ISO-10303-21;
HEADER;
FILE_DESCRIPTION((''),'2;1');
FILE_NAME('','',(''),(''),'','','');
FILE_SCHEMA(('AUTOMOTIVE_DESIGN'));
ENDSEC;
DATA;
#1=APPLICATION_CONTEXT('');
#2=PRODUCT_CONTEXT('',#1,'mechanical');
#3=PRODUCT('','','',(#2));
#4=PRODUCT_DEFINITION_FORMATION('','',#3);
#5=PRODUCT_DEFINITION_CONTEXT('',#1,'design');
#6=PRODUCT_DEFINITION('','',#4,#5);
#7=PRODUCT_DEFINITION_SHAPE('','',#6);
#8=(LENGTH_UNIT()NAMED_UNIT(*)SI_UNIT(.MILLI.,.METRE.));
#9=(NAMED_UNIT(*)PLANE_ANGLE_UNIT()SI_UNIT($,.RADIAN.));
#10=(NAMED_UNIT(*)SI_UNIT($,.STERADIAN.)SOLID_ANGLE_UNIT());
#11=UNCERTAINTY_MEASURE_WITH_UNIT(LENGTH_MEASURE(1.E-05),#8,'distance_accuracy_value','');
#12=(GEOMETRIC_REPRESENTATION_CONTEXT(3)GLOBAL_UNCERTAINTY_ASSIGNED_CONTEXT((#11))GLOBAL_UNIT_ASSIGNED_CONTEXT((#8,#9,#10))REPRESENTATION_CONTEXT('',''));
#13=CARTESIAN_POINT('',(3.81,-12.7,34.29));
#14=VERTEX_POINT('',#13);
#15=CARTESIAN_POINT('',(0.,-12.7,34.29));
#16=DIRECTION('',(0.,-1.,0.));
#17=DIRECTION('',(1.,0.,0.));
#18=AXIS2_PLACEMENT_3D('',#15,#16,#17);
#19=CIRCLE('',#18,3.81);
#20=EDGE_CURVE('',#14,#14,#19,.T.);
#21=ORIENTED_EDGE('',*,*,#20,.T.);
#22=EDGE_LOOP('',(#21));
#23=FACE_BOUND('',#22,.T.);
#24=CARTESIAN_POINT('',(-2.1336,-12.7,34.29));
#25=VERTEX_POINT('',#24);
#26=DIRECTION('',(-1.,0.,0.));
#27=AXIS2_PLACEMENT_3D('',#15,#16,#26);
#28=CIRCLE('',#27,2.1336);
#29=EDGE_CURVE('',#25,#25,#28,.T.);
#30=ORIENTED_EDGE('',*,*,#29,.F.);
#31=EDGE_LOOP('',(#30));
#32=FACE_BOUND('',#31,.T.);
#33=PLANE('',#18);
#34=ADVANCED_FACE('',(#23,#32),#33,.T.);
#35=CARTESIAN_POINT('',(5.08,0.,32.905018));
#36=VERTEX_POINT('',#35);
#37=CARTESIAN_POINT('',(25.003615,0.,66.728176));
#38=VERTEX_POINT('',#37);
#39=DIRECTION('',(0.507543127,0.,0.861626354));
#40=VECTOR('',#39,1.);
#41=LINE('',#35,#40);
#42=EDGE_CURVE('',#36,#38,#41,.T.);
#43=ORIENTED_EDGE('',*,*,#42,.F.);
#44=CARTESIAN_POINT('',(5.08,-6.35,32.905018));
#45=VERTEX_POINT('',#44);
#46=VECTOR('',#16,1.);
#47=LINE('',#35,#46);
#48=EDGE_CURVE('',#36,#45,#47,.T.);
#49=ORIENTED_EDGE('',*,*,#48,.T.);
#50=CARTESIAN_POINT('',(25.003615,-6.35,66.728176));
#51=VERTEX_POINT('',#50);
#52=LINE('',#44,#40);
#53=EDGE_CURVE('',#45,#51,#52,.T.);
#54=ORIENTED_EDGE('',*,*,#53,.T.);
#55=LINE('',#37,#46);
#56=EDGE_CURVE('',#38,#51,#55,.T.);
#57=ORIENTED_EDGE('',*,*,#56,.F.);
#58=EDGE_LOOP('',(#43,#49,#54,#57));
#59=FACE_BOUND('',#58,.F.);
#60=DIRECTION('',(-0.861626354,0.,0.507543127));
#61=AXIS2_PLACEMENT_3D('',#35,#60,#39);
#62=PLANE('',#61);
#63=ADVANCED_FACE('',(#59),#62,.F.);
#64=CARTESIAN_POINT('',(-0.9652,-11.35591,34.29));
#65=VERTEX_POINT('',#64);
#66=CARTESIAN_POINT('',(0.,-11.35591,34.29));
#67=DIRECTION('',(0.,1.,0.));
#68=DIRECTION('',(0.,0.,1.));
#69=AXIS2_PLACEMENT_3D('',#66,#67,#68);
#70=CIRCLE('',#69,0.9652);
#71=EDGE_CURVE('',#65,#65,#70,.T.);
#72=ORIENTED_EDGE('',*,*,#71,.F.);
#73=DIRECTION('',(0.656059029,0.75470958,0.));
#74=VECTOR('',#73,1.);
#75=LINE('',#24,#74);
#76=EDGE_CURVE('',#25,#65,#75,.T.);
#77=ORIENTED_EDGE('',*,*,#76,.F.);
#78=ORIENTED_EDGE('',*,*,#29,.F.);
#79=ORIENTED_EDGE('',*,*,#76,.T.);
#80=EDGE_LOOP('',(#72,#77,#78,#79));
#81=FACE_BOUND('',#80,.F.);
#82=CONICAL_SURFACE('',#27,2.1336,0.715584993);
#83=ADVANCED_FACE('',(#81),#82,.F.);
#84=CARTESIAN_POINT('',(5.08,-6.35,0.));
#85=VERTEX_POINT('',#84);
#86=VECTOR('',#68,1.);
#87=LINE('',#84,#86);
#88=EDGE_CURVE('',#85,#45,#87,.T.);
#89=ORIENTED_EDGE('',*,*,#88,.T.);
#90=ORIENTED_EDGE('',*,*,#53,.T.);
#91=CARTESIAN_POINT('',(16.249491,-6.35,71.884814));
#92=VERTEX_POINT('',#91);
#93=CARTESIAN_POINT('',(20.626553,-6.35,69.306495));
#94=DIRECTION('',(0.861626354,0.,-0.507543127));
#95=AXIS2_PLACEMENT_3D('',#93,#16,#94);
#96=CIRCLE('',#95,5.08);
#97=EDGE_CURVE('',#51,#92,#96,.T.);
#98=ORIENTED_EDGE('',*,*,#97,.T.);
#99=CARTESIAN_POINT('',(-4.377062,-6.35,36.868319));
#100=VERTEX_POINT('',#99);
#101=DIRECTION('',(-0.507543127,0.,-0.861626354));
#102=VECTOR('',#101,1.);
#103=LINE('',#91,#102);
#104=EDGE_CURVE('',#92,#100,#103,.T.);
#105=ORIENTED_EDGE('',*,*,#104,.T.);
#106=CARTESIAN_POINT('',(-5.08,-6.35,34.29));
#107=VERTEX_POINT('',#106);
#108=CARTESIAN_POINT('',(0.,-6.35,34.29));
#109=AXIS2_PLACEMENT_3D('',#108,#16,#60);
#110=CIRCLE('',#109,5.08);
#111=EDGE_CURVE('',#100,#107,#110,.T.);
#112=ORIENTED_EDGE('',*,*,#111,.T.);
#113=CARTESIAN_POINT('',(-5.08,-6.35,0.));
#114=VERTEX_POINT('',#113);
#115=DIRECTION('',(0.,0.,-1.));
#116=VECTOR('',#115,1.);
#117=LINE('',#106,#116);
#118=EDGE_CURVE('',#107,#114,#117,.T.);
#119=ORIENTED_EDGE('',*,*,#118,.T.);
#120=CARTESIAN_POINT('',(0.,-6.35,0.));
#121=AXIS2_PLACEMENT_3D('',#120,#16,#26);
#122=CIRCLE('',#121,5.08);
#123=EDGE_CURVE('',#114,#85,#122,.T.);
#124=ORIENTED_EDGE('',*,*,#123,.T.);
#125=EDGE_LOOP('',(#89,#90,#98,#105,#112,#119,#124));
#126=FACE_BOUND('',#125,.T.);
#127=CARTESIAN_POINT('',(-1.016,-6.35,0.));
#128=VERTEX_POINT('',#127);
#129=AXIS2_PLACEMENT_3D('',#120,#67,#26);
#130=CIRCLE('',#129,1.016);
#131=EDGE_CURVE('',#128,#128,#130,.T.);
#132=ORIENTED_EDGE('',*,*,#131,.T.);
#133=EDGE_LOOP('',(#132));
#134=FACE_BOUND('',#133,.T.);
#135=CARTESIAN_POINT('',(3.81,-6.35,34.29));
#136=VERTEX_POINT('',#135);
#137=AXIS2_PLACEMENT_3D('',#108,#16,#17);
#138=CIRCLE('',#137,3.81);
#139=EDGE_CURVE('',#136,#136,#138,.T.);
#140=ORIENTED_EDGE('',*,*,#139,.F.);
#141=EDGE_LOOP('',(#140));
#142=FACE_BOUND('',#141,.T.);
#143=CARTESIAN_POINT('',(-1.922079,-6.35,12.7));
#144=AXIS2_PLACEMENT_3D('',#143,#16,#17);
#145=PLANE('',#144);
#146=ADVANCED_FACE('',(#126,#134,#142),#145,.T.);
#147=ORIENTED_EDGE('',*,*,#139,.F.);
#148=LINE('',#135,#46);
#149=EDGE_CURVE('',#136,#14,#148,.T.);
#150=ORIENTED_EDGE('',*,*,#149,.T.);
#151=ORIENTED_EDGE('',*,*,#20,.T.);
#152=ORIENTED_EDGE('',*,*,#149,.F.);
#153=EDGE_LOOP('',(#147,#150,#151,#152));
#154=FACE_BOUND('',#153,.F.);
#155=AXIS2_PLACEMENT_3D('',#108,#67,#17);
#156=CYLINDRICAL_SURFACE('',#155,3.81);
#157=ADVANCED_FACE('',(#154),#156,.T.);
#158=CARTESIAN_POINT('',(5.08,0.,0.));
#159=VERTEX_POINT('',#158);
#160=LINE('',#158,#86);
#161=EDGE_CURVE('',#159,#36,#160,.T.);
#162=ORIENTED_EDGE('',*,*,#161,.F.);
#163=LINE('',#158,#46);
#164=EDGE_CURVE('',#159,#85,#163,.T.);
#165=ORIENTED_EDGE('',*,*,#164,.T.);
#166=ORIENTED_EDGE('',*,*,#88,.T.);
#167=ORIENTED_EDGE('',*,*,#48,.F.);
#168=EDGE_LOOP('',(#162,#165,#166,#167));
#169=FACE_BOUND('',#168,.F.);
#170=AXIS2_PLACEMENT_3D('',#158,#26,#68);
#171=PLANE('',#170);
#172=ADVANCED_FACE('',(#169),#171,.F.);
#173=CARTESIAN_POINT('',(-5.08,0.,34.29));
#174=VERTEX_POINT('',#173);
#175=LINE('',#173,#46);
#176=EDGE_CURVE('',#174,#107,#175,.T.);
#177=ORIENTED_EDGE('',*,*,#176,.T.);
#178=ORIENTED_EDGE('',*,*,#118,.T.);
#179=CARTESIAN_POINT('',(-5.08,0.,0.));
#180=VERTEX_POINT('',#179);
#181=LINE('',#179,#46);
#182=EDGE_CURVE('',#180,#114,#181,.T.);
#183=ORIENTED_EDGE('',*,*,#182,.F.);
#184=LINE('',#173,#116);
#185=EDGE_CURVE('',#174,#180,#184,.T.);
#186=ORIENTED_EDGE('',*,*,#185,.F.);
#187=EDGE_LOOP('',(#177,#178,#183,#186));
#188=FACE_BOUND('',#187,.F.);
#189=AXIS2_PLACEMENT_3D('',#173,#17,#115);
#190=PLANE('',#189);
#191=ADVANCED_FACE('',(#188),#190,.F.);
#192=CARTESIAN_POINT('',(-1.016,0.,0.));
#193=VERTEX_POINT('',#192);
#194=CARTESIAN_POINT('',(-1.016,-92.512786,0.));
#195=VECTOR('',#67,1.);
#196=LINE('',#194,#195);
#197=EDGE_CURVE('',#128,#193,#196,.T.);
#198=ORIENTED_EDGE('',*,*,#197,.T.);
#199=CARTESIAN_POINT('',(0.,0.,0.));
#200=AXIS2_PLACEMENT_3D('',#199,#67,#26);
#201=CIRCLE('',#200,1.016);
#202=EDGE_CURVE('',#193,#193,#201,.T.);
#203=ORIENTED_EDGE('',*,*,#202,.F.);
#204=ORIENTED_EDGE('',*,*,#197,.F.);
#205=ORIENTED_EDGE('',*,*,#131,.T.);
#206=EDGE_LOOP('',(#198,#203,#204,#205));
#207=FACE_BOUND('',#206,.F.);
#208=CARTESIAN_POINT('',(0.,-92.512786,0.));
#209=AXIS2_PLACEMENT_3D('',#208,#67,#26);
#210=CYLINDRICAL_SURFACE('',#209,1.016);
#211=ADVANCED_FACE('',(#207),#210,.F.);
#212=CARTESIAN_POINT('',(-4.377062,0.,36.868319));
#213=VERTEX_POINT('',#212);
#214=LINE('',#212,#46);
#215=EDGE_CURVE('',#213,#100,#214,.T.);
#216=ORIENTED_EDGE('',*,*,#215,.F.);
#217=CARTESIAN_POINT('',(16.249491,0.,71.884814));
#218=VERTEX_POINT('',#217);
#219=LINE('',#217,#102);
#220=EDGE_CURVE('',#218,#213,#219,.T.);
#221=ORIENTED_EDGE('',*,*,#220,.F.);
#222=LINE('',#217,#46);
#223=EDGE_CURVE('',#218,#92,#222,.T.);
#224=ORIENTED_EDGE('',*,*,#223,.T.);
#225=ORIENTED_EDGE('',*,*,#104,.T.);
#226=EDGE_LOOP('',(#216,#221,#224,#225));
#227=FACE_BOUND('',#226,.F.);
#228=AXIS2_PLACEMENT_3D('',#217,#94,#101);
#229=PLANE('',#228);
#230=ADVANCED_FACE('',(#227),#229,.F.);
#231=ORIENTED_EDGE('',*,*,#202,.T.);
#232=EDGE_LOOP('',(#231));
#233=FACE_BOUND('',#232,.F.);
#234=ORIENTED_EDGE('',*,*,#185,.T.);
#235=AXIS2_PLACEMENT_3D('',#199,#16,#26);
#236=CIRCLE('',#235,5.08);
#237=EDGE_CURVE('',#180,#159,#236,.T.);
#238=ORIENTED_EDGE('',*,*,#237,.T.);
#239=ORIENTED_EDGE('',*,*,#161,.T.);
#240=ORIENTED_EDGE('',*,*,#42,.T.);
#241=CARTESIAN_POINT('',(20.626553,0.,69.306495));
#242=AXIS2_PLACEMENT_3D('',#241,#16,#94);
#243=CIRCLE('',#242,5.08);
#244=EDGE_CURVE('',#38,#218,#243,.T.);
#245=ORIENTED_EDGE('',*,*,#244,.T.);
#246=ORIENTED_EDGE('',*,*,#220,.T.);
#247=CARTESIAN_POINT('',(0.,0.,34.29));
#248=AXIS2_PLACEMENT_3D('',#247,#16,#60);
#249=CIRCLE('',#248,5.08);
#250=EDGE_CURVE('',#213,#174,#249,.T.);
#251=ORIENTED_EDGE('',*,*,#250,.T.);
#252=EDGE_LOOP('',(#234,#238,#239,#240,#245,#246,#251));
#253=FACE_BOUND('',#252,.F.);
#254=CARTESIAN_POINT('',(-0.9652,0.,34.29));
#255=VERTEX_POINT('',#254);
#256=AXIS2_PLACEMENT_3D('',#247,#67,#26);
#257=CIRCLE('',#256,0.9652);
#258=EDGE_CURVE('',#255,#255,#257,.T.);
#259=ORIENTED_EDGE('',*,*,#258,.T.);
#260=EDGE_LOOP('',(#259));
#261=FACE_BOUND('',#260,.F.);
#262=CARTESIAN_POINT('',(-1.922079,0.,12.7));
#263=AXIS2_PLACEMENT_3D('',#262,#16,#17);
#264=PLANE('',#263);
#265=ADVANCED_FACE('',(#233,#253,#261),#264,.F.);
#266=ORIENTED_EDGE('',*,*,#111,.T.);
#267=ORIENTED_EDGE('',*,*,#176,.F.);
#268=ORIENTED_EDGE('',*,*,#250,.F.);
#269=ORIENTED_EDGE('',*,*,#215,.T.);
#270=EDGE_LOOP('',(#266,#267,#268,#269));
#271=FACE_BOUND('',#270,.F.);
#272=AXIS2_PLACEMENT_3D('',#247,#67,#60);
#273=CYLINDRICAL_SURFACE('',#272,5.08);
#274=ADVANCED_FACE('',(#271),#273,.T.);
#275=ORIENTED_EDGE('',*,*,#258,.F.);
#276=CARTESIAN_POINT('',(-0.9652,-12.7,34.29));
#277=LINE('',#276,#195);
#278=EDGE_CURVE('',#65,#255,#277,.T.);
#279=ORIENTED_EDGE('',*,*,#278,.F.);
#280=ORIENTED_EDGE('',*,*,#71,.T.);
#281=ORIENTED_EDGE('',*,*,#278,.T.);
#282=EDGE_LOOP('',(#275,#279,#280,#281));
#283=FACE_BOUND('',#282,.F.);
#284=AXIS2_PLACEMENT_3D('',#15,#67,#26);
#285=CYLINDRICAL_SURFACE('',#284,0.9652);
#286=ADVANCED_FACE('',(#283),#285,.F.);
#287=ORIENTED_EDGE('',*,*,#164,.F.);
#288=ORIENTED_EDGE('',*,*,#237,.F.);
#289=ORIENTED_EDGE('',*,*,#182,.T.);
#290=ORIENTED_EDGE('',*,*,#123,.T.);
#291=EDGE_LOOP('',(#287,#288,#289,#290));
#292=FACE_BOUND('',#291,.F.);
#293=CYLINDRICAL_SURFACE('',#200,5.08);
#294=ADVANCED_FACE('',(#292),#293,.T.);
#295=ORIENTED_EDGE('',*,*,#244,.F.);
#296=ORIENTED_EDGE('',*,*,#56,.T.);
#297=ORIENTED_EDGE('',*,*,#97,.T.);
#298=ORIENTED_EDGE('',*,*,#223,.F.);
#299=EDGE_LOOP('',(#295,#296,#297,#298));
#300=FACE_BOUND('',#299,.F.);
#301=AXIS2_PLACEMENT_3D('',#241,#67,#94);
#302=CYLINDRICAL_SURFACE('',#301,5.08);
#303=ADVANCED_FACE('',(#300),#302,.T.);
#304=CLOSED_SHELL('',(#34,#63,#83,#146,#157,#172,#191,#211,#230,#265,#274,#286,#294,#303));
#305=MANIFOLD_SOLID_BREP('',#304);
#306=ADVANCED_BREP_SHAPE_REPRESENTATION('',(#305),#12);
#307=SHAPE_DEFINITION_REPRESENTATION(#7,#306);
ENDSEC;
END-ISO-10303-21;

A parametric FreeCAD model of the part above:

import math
import FreeCAD as App
import Part
import Sketcher
Q = App.Units.Quantity

doc = App.newDocument("Part")
params = doc.addObject("Spreadsheet::Sheet", "Params")
for row, (alias, value) in enumerate([
    ("sketch1_radius", "0.2 in"),
    ("sketch1_length", "1.6 in"),
    ("sketch1_height", "1.35 in"),
    ("pad1_length", "0.25 in"),
    ("sketch2_diameter", "0.3 in"),
    ("pad2_length", "0.25 in"),
    ("sketch3_diameter", "0.076 in"),
    ("hole_diameter", "0.076 in"),
    ("hole_csink_diameter", "0.168 in"),
    ("sketch4_diameter", "0.08 in"),
    ("hole2_diameter", "0.08 in"),
], start=1):
    params.set(f"A{row}", alias)
    params.set(f"B{row}", "=" + value)
    params.setAlias(f"B{row}", alias)

body = doc.addObject("PartDesign::Body", "Body")

sketch1 = body.newObject("Sketcher::SketchObject", "Sketch")
sketch1.AttachmentSupport = (doc.getObject("XZ_Plane"), [""])
sketch1.MapMode = "FlatFace"
sketch1.addGeometry([
    Part.ArcOfCircle(Part.Circle(App.Vector(0, 0, 0), App.Vector(0, 0, 1), 5.1), math.radians(180), math.radians(360)),
    Part.LineSegment(App.Vector(5.1, 0, 0), App.Vector(5.1, 32.9, 0)),
    Part.LineSegment(App.Vector(5.1, 32.9, 0), App.Vector(25, 66.7, 0)),
    Part.ArcOfCircle(Part.Circle(App.Vector(20.6, 69.3, 0), App.Vector(0, 0, 1), 5.1), math.radians(-31), math.radians(149)),
    Part.LineSegment(App.Vector(16.2, 71.9, 0), App.Vector(-4.4, 36.9, 0)),
    Part.ArcOfCircle(Part.Circle(App.Vector(0, 34.3, 0), App.Vector(0, 0, 1), 5.1), math.radians(149), math.radians(180)),
    Part.LineSegment(App.Vector(-5.1, 34.3, 0), App.Vector(-5.1, 0, 0)),
], False)
sketch1.addConstraint([
    Sketcher.Constraint("Tangent", 0, 2, 1, 1),
    Sketcher.Constraint("Coincident", 1, 2, 2, 1),
    Sketcher.Constraint("Tangent", 2, 2, 3, 1),
    Sketcher.Constraint("Tangent", 3, 2, 4, 1),
    Sketcher.Constraint("Tangent", 4, 2, 5, 1),
    Sketcher.Constraint("Tangent", 5, 2, 6, 1),
    Sketcher.Constraint("Tangent", 6, 2, 0, 1),
    Sketcher.Constraint("Vertical", 1),
    Sketcher.Constraint("Vertical", 6),
    Sketcher.Constraint("Coincident", 0, 3, -1, 1),
    Sketcher.Constraint("Equal", 0, 3),
    Sketcher.Constraint("Equal", 3, 5),
    Sketcher.Constraint("Parallel", 2, 4),
    Sketcher.Constraint("Radius", 0, Q("0.2 in")),
    Sketcher.Constraint("Distance", 4, Q("1.6 in")),
    Sketcher.Constraint("DistanceY", 6, 2, 6, 1, Q("1.35 in")),
    Sketcher.Constraint("DistanceY", 1, 2, 4, 2, Q("3.963301 mm")),
])
sketch1.setExpression("Constraints[13]", "Params.sketch1_radius")
sketch1.setExpression("Constraints[14]", "Params.sketch1_length")
sketch1.setExpression("Constraints[15]", "Params.sketch1_height")
pad1 = body.newObject("PartDesign::Pad", "Pad")
pad1.Profile = sketch1
pad1.setExpression("Length", "Params.pad1_length")

sketch2 = body.newObject("Sketcher::SketchObject", "Sketch001")
sketch2.AttachmentSupport = (doc.getObject("XZ_Plane"), [""])
sketch2.MapMode = "FlatFace"
sketch2.AttachmentOffset = App.Placement(App.Vector(0, 0, 0.25 * 25.4), App.Rotation())
sketch2.addGeometry(Part.Circle(App.Vector(0, 34.3, 0), App.Vector(0, 0, 1), 3.8), False)
sketch2.addConstraint([
    Sketcher.Constraint("PointOnObject", 0, 3, -2),
    Sketcher.Constraint("Diameter", 0, Q("0.3 in")),
    Sketcher.Constraint("DistanceY", -1, 1, 0, 3, Q("1.35 in")),
])
sketch2.setExpression("Constraints[1]", "Params.sketch2_diameter")
pad2 = body.newObject("PartDesign::Pad", "Pad001")
pad2.Profile = sketch2
pad2.setExpression("Length", "Params.pad2_length")

sketch3 = body.newObject("Sketcher::SketchObject", "Sketch002")
sketch3.AttachmentSupport = (doc.getObject("XZ_Plane"), [""])
sketch3.MapMode = "FlatFace"
sketch3.AttachmentOffset = App.Placement(App.Vector(0, 0, 0.5 * 25.4), App.Rotation())
sketch3.addGeometry(Part.Circle(App.Vector(0, 34.3, 0), App.Vector(0, 0, 1), 1), False)
sketch3.addConstraint([
    Sketcher.Constraint("PointOnObject", 0, 3, -2),
    Sketcher.Constraint("Diameter", 0, Q("0.076 in")),
    Sketcher.Constraint("DistanceY", -1, 1, 0, 3, Q("1.35 in")),
])
sketch3.setExpression("Constraints[1]", "Params.sketch3_diameter")
doc.recompute()
hole = body.newObject("PartDesign::Hole", "Hole")
hole.Profile = sketch3
hole.ThreadType = "None"
hole.setExpression("Diameter", "Params.hole_diameter")
hole.DepthType = "ThroughAll"
hole.HoleCutType = "Countersink"
hole.setExpression("HoleCutDiameter", "Params.hole_csink_diameter")
hole.HoleCutCountersinkAngle = 82

sketch4 = body.newObject("Sketcher::SketchObject", "Sketch003")
sketch4.AttachmentSupport = (doc.getObject("XZ_Plane"), [""])
sketch4.MapMode = "FlatFace"
sketch4.AttachmentOffset = App.Placement(App.Vector(0, 0, 0.25 * 25.4), App.Rotation())
sketch4.addGeometry(Part.Circle(App.Vector(0, 0, 0), App.Vector(0, 0, 1), 1), False)
sketch4.addConstraint([
    Sketcher.Constraint("Coincident", 0, 3, -1, 1),
    Sketcher.Constraint("Diameter", 0, Q("0.08 in")),
])
sketch4.setExpression("Constraints[1]", "Params.sketch4_diameter")
doc.recompute()
hole2 = body.newObject("PartDesign::Hole", "Hole001")
hole2.Profile = sketch4
hole2.ThreadType = "None"
hole2.setExpression("Diameter", "Params.hole2_diameter")
hole2.DepthType = "ThroughAll"

doc.recompute()
